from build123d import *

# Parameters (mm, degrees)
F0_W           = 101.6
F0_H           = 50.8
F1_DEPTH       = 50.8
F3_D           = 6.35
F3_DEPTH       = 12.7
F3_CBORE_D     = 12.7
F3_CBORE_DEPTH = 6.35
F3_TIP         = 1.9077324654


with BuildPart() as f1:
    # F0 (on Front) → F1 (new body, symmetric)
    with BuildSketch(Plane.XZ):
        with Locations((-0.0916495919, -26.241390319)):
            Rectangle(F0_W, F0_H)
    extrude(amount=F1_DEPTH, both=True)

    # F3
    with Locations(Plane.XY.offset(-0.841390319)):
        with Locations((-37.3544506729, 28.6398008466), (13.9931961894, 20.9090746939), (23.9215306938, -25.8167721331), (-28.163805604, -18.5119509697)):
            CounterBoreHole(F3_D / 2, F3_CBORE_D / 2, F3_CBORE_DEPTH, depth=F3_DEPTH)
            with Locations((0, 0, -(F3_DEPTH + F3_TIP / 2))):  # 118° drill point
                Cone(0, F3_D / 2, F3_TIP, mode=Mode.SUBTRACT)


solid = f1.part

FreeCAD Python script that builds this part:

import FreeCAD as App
import Part
import Sketcher

V = App.Vector
Q = App.Units.Quantity


def add_polygon(sketch, points):
    """Adds a closed chain of lines whose ends are joined by coincident constraints."""
    first, n = sketch.GeometryCount, len(points)
    for a, b in zip(points, points[1:] + points[:1]):
        sketch.addGeometry(Part.LineSegment(App.Vector(*a, 0), App.Vector(*b, 0)), False)
    for i in range(n):
        sketch.addConstraint(Sketcher.Constraint("Coincident", first + i, 2, first + (i + 1) % n, 1))

doc = App.newDocument("Part")
body = doc.addObject("PartDesign::Body", "Body")

# Sketch on XZ plane
sketch1 = body.newObject("Sketcher::SketchObject", "Sketch")
sketch1.AttachmentSupport = (doc.getObject("XZ_Plane"), [""])
sketch1.MapMode = "FlatFace"
add_polygon(sketch1, [(-51, -1), (-51, -52), (51, -52), (51, -1)])  # lines 0-3
sketch1.addConstraint([
    Sketcher.Constraint("Vertical", 0),
    Sketcher.Constraint("Horizontal", 1),
    Sketcher.Constraint("Vertical", 2),
    Sketcher.Constraint("Horizontal", 3),
    Sketcher.Constraint("DistanceX", 1, 1, 1, 2, Q("4 in")),
    Sketcher.Constraint("DistanceY", 0, 2, 0, 1, Q("2 in")),
    Sketcher.Constraint("DistanceX", 0, 2, -1, 1, 50.89165),
    Sketcher.Constraint("DistanceY", 0, 2, -1, 1, 51.64139),
])
pad1 = body.newObject("PartDesign::Pad", "Pad")
pad1.Profile = sketch1
pad1.Length = Q("4 in")
pad1.Midplane = True

# Sketch on XY plane
sketch2 = body.newObject("Sketcher::SketchObject", "Sketch001")
sketch2.AttachmentSupport = (doc.getObject("XY_Plane"), [""])
sketch2.MapMode = "FlatFace"
sketch2.AttachmentOffset = App.Placement(V(0, 0, -0.84139), App.Rotation())
sketch2.addGeometry([
    Part.Circle(V(-37.4, 28.6, 0), V(0, 0, 1), 3.2),
    Part.Circle(V(14, 20.9, 0), V(0, 0, 1), 3.2),
    Part.Circle(V(23.9, -25.8, 0), V(0, 0, 1), 3.2),
    Part.Circle(V(-28.2, -18.5, 0), V(0, 0, 1), 3.2),
], False)
sketch2.addConstraint([
    Sketcher.Constraint("Equal", 0, 1),
    Sketcher.Constraint("Equal", 1, 2),
    Sketcher.Constraint("Equal", 2, 3),
    Sketcher.Constraint("Diameter", 0, Q("0.25 in")),
    Sketcher.Constraint("DistanceY", -1, 1, 0, 3, 28.639801),
    Sketcher.Constraint("DistanceX", 3, 3, 1, 3, 42.157002),
    Sketcher.Constraint("DistanceX", 0, 3, -1, 1, 37.354451),
    Sketcher.Constraint("DistanceX", -1, 1, 2, 3, 23.921531),
    Sketcher.Constraint("DistanceY", 3, 3, -1, 1, 18.511951),
    Sketcher.Constraint("DistanceY", 2, 3, 3, 3, 7.304821),
    Sketcher.Constraint("DistanceX", -1, 1, 1, 3, 13.993196),
    Sketcher.Constraint("DistanceY", -1, 1, 1, 3, 20.909075),
])
doc.recompute()
hole = body.newObject("PartDesign::Hole", "Hole")
hole.Profile = sketch2
hole.ThreadType = "None"
hole.Diameter = Q("0.25 in")
hole.DepthType = "Dimension"
hole.Depth = Q("0.5 in")
hole.DrillPoint = "Angled"
hole.DrillPointAngle = 118
hole.HoleCutType = "Counterbore"
hole.HoleCutDiameter = Q("0.5 in")
hole.HoleCutDepth = Q("0.25 in")

doc.recompute()
